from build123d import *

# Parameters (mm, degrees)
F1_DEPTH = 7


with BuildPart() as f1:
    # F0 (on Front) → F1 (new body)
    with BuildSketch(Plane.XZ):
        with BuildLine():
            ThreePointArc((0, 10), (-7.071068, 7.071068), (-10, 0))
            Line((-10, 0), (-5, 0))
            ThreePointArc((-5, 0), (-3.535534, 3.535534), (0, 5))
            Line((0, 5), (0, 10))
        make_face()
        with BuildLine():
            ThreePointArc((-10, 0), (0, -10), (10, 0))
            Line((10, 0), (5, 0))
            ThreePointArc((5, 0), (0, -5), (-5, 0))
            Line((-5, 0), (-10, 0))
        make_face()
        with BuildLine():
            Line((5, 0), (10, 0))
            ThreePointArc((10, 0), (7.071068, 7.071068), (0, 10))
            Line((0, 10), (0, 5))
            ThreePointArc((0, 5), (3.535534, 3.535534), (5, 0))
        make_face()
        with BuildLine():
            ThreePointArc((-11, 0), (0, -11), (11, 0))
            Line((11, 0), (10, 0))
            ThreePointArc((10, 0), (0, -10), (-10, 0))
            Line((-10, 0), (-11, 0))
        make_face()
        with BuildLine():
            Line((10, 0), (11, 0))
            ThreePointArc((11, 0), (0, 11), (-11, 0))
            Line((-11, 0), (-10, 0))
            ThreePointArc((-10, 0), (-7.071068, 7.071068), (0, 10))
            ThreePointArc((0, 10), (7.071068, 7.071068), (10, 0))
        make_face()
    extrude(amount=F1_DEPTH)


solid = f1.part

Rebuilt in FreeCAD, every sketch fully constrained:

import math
import FreeCAD as App
import Part
import Sketcher
from FreeCAD import Vector
Q = App.Units.Quantity

doc = App.newDocument("Part")
body = doc.addObject("PartDesign::Body", "Body")

# Sketch on XZ plane
sketch1 = doc.addObject("Sketcher::SketchObject", "Sketch")
body.addObject(sketch1)
sketch1.AttachmentSupport = (doc.XZ_Plane, [""])
sketch1.MapMode = "FlatFace"
sketch1.addGeometry([
    Part.Circle(Vector(0, 0, 0), Vector(0, 0, 1), 11),
    Part.ArcOfCircle(Part.Circle(Vector(0, 0, 0), Vector(0, 0, 1), 5), math.radians(180), math.radians(360)),
    Part.ArcOfCircle(Part.Circle(Vector(0, 0, 0), Vector(0, 0, 1), 5), math.radians(89.999996), math.radians(180.000004)),
    Part.ArcOfCircle(Part.Circle(Vector(0, 0, 0), Vector(0, 0, 1), 5), math.radians(-0.000004), math.radians(90.000004)),
], False)
sketch1.addConstraint([
    Sketcher.Constraint("Tangent", 1, 1, 2, 2),
    Sketcher.Constraint("Tangent", 2, 1, 3, 2),
    Sketcher.Constraint("Tangent", 3, 1, 1, 2),
    Sketcher.Constraint("Coincident", 0, 3, -1, 1),
    Sketcher.Constraint("Coincident", 1, 3, -1, 1),
    Sketcher.Constraint("PointOnObject", 1, 1, -1),
    Sketcher.Constraint("PointOnObject", 2, 1, -2),
    Sketcher.Constraint("PointOnObject", 3, 1, -1),
    Sketcher.Constraint("Diameter", 0, Q("22 mm")),
    Sketcher.Constraint("Radius", 1, Q("5 mm")),
])
pad1 = doc.addObject("PartDesign::Pad", "Pad")
body.addObject(pad1)
pad1.Profile = sketch1
pad1.Length = 7

doc.recompute()
